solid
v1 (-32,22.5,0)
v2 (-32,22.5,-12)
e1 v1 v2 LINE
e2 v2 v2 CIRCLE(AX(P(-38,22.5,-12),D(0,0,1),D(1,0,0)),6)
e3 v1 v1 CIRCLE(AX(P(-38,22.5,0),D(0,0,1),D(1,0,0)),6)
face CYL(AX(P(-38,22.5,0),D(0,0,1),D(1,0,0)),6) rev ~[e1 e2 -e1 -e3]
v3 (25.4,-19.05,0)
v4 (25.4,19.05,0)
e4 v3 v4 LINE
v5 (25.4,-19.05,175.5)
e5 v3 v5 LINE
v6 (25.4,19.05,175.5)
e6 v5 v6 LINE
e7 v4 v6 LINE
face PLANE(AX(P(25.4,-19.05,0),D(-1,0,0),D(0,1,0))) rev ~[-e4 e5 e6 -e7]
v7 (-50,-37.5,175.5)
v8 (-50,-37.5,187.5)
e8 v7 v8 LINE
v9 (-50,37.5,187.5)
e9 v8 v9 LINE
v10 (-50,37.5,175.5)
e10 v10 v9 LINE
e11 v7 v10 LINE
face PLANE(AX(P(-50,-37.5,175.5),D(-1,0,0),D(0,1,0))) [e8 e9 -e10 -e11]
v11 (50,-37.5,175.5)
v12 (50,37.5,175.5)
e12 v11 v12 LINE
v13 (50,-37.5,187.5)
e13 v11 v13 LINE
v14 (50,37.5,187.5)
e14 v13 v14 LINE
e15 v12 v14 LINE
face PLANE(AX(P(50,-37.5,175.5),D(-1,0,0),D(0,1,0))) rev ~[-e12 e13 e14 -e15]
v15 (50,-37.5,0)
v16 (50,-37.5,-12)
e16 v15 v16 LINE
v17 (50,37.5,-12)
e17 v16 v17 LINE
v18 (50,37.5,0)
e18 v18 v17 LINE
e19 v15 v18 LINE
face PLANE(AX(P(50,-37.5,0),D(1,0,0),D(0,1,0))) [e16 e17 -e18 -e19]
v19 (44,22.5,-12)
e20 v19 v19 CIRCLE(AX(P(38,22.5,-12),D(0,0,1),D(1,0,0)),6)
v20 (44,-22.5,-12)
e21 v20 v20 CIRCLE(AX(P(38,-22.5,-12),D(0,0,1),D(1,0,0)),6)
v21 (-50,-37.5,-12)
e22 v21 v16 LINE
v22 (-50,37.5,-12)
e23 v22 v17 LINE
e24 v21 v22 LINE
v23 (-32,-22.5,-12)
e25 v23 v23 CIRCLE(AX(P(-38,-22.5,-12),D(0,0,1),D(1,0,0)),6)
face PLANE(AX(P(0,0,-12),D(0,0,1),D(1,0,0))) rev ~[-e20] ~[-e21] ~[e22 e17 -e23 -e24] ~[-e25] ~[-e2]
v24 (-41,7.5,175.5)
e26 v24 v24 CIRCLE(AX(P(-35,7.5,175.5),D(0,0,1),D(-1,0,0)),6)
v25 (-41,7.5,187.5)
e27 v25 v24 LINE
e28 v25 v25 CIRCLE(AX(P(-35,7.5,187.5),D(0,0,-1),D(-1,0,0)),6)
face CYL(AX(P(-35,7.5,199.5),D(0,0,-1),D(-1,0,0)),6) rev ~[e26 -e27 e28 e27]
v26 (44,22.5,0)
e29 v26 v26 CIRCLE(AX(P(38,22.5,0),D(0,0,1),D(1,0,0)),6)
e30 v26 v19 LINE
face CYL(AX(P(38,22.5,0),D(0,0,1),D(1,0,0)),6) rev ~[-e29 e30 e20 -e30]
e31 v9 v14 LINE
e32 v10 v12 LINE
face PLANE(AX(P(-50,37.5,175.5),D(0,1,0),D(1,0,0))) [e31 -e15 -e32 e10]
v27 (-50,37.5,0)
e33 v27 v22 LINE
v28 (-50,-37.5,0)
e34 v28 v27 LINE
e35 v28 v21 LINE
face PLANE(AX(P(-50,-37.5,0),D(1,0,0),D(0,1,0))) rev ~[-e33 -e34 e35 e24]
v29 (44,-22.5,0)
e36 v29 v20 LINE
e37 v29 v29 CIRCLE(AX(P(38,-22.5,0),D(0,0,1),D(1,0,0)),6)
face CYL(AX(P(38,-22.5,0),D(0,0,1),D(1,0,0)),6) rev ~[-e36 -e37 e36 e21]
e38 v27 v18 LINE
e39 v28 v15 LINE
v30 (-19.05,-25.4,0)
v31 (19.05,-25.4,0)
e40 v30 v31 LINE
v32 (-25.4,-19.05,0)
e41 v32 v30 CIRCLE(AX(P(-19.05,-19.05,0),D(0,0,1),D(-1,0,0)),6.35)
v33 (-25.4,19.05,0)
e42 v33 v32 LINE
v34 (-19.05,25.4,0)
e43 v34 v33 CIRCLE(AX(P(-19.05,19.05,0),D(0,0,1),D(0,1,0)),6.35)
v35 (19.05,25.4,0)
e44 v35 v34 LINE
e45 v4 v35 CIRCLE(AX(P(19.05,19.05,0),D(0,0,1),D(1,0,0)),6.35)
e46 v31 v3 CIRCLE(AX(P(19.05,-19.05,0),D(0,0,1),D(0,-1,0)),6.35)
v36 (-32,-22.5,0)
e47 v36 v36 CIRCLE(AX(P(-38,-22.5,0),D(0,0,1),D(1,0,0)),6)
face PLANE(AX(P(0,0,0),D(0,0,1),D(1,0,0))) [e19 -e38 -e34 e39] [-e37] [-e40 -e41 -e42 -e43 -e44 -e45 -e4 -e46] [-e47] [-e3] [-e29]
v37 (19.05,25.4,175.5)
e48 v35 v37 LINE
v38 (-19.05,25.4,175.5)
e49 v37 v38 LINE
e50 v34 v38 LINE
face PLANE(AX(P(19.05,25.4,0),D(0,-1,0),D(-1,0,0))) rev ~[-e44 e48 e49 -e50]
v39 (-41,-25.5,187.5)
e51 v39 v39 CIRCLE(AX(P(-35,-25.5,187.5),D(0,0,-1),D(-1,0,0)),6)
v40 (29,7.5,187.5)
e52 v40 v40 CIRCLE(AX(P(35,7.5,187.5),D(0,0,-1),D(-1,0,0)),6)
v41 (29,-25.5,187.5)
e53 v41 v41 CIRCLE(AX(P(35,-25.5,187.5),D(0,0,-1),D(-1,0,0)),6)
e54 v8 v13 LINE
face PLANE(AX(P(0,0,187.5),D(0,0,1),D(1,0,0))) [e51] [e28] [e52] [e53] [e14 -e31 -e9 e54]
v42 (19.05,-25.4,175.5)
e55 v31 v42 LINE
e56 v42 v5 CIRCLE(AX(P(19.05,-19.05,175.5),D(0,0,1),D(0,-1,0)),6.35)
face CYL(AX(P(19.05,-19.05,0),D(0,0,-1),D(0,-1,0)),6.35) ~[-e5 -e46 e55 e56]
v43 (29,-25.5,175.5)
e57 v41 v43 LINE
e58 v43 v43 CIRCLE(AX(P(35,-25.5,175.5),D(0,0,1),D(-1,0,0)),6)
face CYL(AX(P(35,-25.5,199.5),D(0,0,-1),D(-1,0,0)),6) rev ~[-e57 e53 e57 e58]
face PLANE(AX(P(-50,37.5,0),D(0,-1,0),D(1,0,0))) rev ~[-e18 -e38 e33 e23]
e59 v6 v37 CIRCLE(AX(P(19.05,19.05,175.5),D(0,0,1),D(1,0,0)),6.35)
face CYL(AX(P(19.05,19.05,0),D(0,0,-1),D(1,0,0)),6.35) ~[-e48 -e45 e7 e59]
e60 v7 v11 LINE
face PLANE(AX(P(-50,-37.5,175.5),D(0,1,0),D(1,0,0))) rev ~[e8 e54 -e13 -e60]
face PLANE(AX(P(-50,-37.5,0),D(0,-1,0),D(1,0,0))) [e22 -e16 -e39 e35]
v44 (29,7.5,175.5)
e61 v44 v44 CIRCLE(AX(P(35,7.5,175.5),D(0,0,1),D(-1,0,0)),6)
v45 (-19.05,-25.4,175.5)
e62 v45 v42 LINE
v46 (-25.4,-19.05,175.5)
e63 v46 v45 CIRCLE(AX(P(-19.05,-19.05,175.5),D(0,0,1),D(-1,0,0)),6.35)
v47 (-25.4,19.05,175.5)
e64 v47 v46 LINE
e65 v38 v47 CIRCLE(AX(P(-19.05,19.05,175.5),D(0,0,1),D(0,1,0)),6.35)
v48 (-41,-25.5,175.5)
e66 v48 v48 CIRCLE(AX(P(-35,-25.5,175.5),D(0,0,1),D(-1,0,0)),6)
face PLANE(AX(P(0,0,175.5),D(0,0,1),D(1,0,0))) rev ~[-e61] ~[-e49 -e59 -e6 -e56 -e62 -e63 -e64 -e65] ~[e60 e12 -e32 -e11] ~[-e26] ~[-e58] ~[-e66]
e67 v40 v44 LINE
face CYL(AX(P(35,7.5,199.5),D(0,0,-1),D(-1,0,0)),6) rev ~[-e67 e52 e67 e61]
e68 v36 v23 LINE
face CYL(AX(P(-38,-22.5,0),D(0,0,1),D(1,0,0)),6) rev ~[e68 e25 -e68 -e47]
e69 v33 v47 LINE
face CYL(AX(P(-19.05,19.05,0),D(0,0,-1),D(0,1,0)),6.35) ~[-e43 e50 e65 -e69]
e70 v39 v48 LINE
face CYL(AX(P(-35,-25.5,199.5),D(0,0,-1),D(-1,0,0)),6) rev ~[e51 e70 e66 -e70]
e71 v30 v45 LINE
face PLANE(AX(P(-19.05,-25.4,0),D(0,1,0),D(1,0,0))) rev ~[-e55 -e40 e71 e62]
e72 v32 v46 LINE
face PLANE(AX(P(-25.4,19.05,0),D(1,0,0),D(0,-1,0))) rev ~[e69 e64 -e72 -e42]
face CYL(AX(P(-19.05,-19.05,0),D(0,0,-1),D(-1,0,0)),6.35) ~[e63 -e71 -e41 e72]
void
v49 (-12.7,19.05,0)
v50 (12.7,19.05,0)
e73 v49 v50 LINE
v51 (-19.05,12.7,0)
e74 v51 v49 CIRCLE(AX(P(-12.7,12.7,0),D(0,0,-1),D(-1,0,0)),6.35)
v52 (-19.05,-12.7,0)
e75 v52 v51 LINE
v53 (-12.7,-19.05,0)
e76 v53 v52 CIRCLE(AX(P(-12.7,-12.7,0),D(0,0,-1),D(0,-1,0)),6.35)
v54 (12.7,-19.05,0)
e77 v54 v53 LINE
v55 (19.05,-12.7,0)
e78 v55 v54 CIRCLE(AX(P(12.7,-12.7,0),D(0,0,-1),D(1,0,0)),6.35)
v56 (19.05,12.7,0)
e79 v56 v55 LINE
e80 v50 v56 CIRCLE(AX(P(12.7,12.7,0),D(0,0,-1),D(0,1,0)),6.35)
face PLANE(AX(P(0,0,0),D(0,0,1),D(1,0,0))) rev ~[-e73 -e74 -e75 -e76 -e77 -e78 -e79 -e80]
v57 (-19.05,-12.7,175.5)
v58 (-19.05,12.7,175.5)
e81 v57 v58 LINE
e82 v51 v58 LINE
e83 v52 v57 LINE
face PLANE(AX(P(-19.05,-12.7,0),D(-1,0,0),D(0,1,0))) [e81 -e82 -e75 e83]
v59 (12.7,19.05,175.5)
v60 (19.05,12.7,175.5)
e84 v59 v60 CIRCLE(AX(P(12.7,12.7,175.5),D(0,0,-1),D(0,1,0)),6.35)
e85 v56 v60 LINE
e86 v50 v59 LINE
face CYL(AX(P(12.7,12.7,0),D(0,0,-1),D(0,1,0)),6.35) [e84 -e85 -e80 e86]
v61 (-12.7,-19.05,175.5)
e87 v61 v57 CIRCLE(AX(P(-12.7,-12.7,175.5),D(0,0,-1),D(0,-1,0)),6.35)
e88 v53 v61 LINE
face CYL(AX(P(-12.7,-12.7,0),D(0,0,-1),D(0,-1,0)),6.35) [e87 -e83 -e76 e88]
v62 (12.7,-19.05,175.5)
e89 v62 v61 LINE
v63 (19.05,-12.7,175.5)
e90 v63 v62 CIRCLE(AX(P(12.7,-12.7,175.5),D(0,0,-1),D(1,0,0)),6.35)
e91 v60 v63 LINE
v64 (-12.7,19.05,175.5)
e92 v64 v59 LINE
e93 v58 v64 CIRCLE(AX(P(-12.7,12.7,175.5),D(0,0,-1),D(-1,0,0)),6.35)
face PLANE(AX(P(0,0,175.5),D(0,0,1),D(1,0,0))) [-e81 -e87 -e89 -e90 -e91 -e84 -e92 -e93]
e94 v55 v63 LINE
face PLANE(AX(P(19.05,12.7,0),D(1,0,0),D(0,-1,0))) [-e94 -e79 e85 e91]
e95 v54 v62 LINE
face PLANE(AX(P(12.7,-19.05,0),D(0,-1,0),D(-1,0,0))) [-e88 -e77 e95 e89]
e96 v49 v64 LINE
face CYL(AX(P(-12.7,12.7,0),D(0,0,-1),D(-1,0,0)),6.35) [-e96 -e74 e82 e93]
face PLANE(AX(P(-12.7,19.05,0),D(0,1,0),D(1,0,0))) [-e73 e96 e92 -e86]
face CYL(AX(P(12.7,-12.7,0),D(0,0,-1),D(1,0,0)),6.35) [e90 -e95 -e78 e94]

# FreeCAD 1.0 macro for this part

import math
import FreeCAD as App
import Part
import Sketcher
from FreeCAD import Vector

doc = App.newDocument("Part")
params = doc.addObject("Spreadsheet::Sheet", "Params")
for row, (alias, value) in enumerate([
    ("sketch1_width", "100 mm"),
    ("sketch1_height", "75 mm"),
    ("pad1_length", "12 mm"),
    ("sketch2_radius", "6.35 mm"),
    ("sketch2_width", "38.1 mm"),
    ("pad2_length", "175.5 mm"),
    ("sketch3_width", "100 mm"),
    ("sketch3_height", "75 mm"),
    ("pad3_length", "12 mm"),
    ("sketch4_diameter", "12 mm"),
    ("sketch5_diameter", "12 mm"),
    ("hole_diameter", "12 mm"),
    ("hole_depth", "12 mm"),
], start=1):
    params.set(f"A{row}", alias)
    params.set(f"B{row}", "=" + value)
    params.setAlias(f"B{row}", alias)

body = doc.addObject("PartDesign::Body", "Body")

# Sketch on XY plane
sketch1 = doc.addObject("Sketcher::SketchObject", "Sketch")
body.addObject(sketch1)
sketch1.AttachmentSupport = (doc.XY_Plane, [""])
sketch1.MapMode = "FlatFace"
sketch1.addGeometry([
    Part.LineSegment(Vector(-50, 38, 0), Vector(-50, -38, 0)),
    Part.LineSegment(Vector(-50, -38, 0), Vector(50, -38, 0)),
    Part.LineSegment(Vector(50, -38, 0), Vector(50, 38, 0)),
    Part.LineSegment(Vector(50, 38, 0), Vector(-50, 38, 0)),
], False)
sketch1.addConstraint([
    Sketcher.Constraint("Coincident", 0, 2, 1, 1),
    Sketcher.Constraint("Coincident", 1, 2, 2, 1),
    Sketcher.Constraint("Coincident", 2, 2, 3, 1),
    Sketcher.Constraint("Coincident", 3, 2, 0, 1),
    Sketcher.Constraint("Vertical", 0),
    Sketcher.Constraint("Horizontal", 1),
    Sketcher.Constraint("Vertical", 2),
    Sketcher.Constraint("Horizontal", 3),
    Sketcher.Constraint("Symmetric", 0, 2, 2, 2, -1, 1),
    Sketcher.Constraint("DistanceX", 1, 1, 1, 2, 100.0),
    Sketcher.Constraint("DistanceY", 0, 2, 0, 1, 75.0),
])
sketch1.setExpression("Constraints[9]", "Params.sketch1_width")
sketch1.setExpression("Constraints[10]", "Params.sketch1_height")
pad1 = doc.addObject("PartDesign::Pad", "Pad")
body.addObject(pad1)
pad1.Profile = sketch1
pad1.setExpression("Length", "Params.pad1_length")
pad1.Reversed = True

# Sketch on XY plane
sketch2 = doc.addObject("Sketcher::SketchObject", "Sketch001")
body.addObject(sketch2)
sketch2.AttachmentSupport = (doc.XY_Plane, [""])
sketch2.MapMode = "FlatFace"
sketch2.addGeometry([
    Part.LineSegment(Vector(-19, -25, 0), Vector(19, -25, 0)),  # 0
    Part.ArcOfCircle(Part.Circle(Vector(19, -19, 0), Vector(0, 0, 1), 6), math.radians(-90), math.radians(0)),  # 1
    Part.LineSegment(Vector(25, -19, 0), Vector(25, 19, 0)),  # 2
    Part.ArcOfCircle(Part.Circle(Vector(19, 19, 0), Vector(0, 0, 1), 6), math.radians(0), math.radians(90)),  # 3
    Part.LineSegment(Vector(19, 25, 0), Vector(-19, 25, 0)),  # 4
    Part.ArcOfCircle(Part.Circle(Vector(-19, 19, 0), Vector(0, 0, 1), 6), math.radians(90), math.radians(180)),  # 5
    Part.LineSegment(Vector(-25, 19, 0), Vector(-25, -19, 0)),  # 6
    Part.ArcOfCircle(Part.Circle(Vector(-19, -19, 0), Vector(0, 0, 1), 6), math.radians(180), math.radians(270)),  # 7
    Part.ArcOfCircle(Part.Circle(Vector(-13, 13, 0), Vector(0, 0, 1), 6), math.radians(90), math.radians(180)),  # 8
    Part.LineSegment(Vector(-13, 19, 0), Vector(13, 19, 0)),  # 9
    Part.ArcOfCircle(Part.Circle(Vector(13, 13, 0), Vector(0, 0, 1), 6), math.radians(0), math.radians(90)),  # 10
    Part.LineSegment(Vector(19, 13, 0), Vector(19, -13, 0)),  # 11
    Part.ArcOfCircle(Part.Circle(Vector(13, -13, 0), Vector(0, 0, 1), 6), math.radians(-90), math.radians(0)),  # 12
    Part.LineSegment(Vector(13, -19, 0), Vector(-13, -19, 0)),  # 13
    Part.ArcOfCircle(Part.Circle(Vector(-13, -13, 0), Vector(0, 0, 1), 6), math.radians(180), math.radians(270)),  # 14
    Part.LineSegment(Vector(-19, -13, 0), Vector(-19, 13, 0)),  # 15
], False)
sketch2.addConstraint([
    Sketcher.Constraint("Tangent", 0, 2, 1, 1),
    Sketcher.Constraint("Tangent", 1, 2, 2, 1),
    Sketcher.Constraint("Tangent", 2, 2, 3, 1),
    Sketcher.Constraint("Tangent", 3, 2, 4, 1),
    Sketcher.Constraint("Tangent", 4, 2, 5, 1),
    Sketcher.Constraint("Tangent", 5, 2, 6, 1),
    Sketcher.Constraint("Tangent", 6, 2, 7, 1),
    Sketcher.Constraint("Tangent", 7, 2, 0, 1),
    Sketcher.Constraint("Tangent", 8, 1, 9, 1),
    Sketcher.Constraint("Tangent", 9, 2, 10, 2),
    Sketcher.Constraint("Tangent", 10, 1, 11, 1),
    Sketcher.Constraint("Tangent", 11, 2, 12, 2),
    Sketcher.Constraint("Tangent", 12, 1, 13, 1),
    Sketcher.Constraint("Tangent", 13, 2, 14, 2),
    Sketcher.Constraint("Tangent", 14, 1, 15, 1),
    Sketcher.Constraint("Tangent", 15, 2, 8, 2),
    Sketcher.Constraint("Horizontal", 0),
    Sketcher.Constraint("Vertical", 2),
    Sketcher.Constraint("Horizontal", 4),
    Sketcher.Constraint("Vertical", 6),
    Sketcher.Constraint("Horizontal", 9),
    Sketcher.Constraint("Vertical", 11),
    Sketcher.Constraint("Horizontal", 13),
    Sketcher.Constraint("Vertical", 15),
    Sketcher.Constraint("Equal", 1, 3),
    Sketcher.Constraint("Equal", 3, 5),
    Sketcher.Constraint("Equal", 5, 7),
    Sketcher.Constraint("Equal", 7, 8),
    Sketcher.Constraint("Equal", 8, 10),
    Sketcher.Constraint("Equal", 10, 12),
    Sketcher.Constraint("Equal", 12, 14),
    Sketcher.Constraint("Symmetric", 1, 3, 5, 3, -1, 1),
    Sketcher.Constraint("Symmetric", 8, 3, 12, 3, -1, 1),
    Sketcher.Constraint("Horizontal", 5, 2, 8, 1),
    Sketcher.Constraint("Vertical", 3, 2, 10, 1),
    Sketcher.Constraint("Equal", 4, 2),
    Sketcher.Constraint("Radius", 1, 6.35),
    Sketcher.Constraint("DistanceX", 0, 1, 0, 2, 38.1),
])
sketch2.setExpression("Constraints[36]", "Params.sketch2_radius")
sketch2.setExpression("Constraints[37]", "Params.sketch2_width")
pad2 = doc.addObject("PartDesign::Pad", "Pad001")
body.addObject(pad2)
pad2.Profile = sketch2
pad2.setExpression("Length", "Params.pad2_length")

# Sketch on XY plane
sketch3 = doc.addObject("Sketcher::SketchObject", "Sketch002")
body.addObject(sketch3)
sketch3.AttachmentSupport = (doc.XY_Plane, [""])
sketch3.MapMode = "FlatFace"
sketch3.AttachmentOffset = App.Placement(Vector(0, 0, 175.5), App.Rotation())
sketch3.addGeometry([
    Part.LineSegment(Vector(-50, 38, 0), Vector(-50, -38, 0)),
    Part.LineSegment(Vector(-50, -38, 0), Vector(50, -38, 0)),
    Part.LineSegment(Vector(50, -38, 0), Vector(50, 38, 0)),
    Part.LineSegment(Vector(50, 38, 0), Vector(-50, 38, 0)),
], False)
sketch3.addConstraint([
    Sketcher.Constraint("Coincident", 0, 2, 1, 1),
    Sketcher.Constraint("Coincident", 1, 2, 2, 1),
    Sketcher.Constraint("Coincident", 2, 2, 3, 1),
    Sketcher.Constraint("Coincident", 3, 2, 0, 1),
    Sketcher.Constraint("Vertical", 0),
    Sketcher.Constraint("Horizontal", 1),
    Sketcher.Constraint("Vertical", 2),
    Sketcher.Constraint("Horizontal", 3),
    Sketcher.Constraint("Symmetric", 0, 2, 2, 2, -1, 1),
    Sketcher.Constraint("DistanceX", 1, 1, 1, 2, 100.0),
    Sketcher.Constraint("DistanceY", 0, 2, 0, 1, 75.0),
])
sketch3.setExpression("Constraints[9]", "Params.sketch3_width")
sketch3.setExpression("Constraints[10]", "Params.sketch3_height")
pad3 = doc.addObject("PartDesign::Pad", "Pad002")
body.addObject(pad3)
pad3.Profile = sketch3
pad3.setExpression("Length", "Params.pad3_length")

# Sketch on XY plane
sketch4 = doc.addObject("Sketcher::SketchObject", "Sketch003")
body.addObject(sketch4)
sketch4.AttachmentSupport = (doc.XY_Plane, [""])
sketch4.MapMode = "FlatFace"
sketch4.addGeometry([
    Part.Circle(Vector(-38, -22, 0), Vector(0, 0, 1), 6),
    Part.Circle(Vector(-38, 22, 0), Vector(0, 0, 1), 6),
    Part.Circle(Vector(38, 22, 0), Vector(0, 0, 1), 6),
    Part.Circle(Vector(38, -22, 0), Vector(0, 0, 1), 6),
], False)
sketch4.addConstraint([
    Sketcher.Constraint("Equal", 0, 1),
    Sketcher.Constraint("Equal", 1, 2),
    Sketcher.Constraint("Equal", 2, 3),
    Sketcher.Constraint("Symmetric", 0, 3, 2, 3, -1, 1),
    Sketcher.Constraint("Symmetric", 1, 3, 3, 3, -1, 1),
    Sketcher.Constraint("Symmetric", 1, 3, 2, 3, -2),
    Sketcher.Constraint("Diameter", 0, 12.0),
    Sketcher.Constraint("DistanceX", 0, 3, -1, 1, 38.0),
    Sketcher.Constraint("DistanceY", 0, 3, 1, 3, 45.0),
])
sketch4.setExpression("Constraints[6]", "Params.sketch4_diameter")
pocket1 = doc.addObject("PartDesign::Pocket", "Pocket")
body.addObject(pocket1)
pocket1.Profile = sketch4
pocket1.Type = "ThroughAll"

# Sketch on XY plane
sketch5 = doc.addObject("Sketcher::SketchObject", "Sketch004")
body.addObject(sketch5)
sketch5.AttachmentSupport = (doc.XY_Plane, [""])
sketch5.MapMode = "FlatFace"
sketch5.AttachmentOffset = App.Placement(Vector(0, 0, 187.5), App.Rotation())
sketch5.addGeometry([
    Part.Circle(Vector(-35, 8, 0), Vector(0, 0, 1), 6),
    Part.Circle(Vector(-35, -26, 0), Vector(0, 0, 1), 6),
    Part.Circle(Vector(35, -26, 0), Vector(0, 0, 1), 6),
    Part.Circle(Vector(35, 8, 0), Vector(0, 0, 1), 6),
], False)
sketch5.addConstraint([
    Sketcher.Constraint("Equal", 0, 1),
    Sketcher.Constraint("Equal", 1, 2),
    Sketcher.Constraint("Equal", 2, 3),
    Sketcher.Constraint("Symmetric", 1, 3, 2, 3, -2),
    Sketcher.Constraint("Symmetric", 0, 3, 3, 3, -2),
    Sketcher.Constraint("Vertical", 0, 3, 1, 3),
    Sketcher.Constraint("Diameter", 0, 12.0),
    Sketcher.Constraint("DistanceX", 0, 3, -1, 1, 35.0),
    Sketcher.Constraint("DistanceY", 1, 3, 0, 3, 33.0),
    Sketcher.Constraint("DistanceY", -1, 1, 0, 3, 7.5),
])
sketch5.setExpression("Constraints[6]", "Params.sketch5_diameter")
doc.recompute()
hole = doc.addObject("PartDesign::Hole", "Hole")
body.addObject(hole)
hole.Profile = sketch5
hole.ThreadType = "None"
hole.setExpression("Diameter", "Params.hole_diameter")
hole.DepthType = "Dimension"
hole.setExpression("Depth", "Params.hole_depth")
hole.DrillPoint = "Angled"
hole.DrillPointAngle = 118

doc.recompute()
